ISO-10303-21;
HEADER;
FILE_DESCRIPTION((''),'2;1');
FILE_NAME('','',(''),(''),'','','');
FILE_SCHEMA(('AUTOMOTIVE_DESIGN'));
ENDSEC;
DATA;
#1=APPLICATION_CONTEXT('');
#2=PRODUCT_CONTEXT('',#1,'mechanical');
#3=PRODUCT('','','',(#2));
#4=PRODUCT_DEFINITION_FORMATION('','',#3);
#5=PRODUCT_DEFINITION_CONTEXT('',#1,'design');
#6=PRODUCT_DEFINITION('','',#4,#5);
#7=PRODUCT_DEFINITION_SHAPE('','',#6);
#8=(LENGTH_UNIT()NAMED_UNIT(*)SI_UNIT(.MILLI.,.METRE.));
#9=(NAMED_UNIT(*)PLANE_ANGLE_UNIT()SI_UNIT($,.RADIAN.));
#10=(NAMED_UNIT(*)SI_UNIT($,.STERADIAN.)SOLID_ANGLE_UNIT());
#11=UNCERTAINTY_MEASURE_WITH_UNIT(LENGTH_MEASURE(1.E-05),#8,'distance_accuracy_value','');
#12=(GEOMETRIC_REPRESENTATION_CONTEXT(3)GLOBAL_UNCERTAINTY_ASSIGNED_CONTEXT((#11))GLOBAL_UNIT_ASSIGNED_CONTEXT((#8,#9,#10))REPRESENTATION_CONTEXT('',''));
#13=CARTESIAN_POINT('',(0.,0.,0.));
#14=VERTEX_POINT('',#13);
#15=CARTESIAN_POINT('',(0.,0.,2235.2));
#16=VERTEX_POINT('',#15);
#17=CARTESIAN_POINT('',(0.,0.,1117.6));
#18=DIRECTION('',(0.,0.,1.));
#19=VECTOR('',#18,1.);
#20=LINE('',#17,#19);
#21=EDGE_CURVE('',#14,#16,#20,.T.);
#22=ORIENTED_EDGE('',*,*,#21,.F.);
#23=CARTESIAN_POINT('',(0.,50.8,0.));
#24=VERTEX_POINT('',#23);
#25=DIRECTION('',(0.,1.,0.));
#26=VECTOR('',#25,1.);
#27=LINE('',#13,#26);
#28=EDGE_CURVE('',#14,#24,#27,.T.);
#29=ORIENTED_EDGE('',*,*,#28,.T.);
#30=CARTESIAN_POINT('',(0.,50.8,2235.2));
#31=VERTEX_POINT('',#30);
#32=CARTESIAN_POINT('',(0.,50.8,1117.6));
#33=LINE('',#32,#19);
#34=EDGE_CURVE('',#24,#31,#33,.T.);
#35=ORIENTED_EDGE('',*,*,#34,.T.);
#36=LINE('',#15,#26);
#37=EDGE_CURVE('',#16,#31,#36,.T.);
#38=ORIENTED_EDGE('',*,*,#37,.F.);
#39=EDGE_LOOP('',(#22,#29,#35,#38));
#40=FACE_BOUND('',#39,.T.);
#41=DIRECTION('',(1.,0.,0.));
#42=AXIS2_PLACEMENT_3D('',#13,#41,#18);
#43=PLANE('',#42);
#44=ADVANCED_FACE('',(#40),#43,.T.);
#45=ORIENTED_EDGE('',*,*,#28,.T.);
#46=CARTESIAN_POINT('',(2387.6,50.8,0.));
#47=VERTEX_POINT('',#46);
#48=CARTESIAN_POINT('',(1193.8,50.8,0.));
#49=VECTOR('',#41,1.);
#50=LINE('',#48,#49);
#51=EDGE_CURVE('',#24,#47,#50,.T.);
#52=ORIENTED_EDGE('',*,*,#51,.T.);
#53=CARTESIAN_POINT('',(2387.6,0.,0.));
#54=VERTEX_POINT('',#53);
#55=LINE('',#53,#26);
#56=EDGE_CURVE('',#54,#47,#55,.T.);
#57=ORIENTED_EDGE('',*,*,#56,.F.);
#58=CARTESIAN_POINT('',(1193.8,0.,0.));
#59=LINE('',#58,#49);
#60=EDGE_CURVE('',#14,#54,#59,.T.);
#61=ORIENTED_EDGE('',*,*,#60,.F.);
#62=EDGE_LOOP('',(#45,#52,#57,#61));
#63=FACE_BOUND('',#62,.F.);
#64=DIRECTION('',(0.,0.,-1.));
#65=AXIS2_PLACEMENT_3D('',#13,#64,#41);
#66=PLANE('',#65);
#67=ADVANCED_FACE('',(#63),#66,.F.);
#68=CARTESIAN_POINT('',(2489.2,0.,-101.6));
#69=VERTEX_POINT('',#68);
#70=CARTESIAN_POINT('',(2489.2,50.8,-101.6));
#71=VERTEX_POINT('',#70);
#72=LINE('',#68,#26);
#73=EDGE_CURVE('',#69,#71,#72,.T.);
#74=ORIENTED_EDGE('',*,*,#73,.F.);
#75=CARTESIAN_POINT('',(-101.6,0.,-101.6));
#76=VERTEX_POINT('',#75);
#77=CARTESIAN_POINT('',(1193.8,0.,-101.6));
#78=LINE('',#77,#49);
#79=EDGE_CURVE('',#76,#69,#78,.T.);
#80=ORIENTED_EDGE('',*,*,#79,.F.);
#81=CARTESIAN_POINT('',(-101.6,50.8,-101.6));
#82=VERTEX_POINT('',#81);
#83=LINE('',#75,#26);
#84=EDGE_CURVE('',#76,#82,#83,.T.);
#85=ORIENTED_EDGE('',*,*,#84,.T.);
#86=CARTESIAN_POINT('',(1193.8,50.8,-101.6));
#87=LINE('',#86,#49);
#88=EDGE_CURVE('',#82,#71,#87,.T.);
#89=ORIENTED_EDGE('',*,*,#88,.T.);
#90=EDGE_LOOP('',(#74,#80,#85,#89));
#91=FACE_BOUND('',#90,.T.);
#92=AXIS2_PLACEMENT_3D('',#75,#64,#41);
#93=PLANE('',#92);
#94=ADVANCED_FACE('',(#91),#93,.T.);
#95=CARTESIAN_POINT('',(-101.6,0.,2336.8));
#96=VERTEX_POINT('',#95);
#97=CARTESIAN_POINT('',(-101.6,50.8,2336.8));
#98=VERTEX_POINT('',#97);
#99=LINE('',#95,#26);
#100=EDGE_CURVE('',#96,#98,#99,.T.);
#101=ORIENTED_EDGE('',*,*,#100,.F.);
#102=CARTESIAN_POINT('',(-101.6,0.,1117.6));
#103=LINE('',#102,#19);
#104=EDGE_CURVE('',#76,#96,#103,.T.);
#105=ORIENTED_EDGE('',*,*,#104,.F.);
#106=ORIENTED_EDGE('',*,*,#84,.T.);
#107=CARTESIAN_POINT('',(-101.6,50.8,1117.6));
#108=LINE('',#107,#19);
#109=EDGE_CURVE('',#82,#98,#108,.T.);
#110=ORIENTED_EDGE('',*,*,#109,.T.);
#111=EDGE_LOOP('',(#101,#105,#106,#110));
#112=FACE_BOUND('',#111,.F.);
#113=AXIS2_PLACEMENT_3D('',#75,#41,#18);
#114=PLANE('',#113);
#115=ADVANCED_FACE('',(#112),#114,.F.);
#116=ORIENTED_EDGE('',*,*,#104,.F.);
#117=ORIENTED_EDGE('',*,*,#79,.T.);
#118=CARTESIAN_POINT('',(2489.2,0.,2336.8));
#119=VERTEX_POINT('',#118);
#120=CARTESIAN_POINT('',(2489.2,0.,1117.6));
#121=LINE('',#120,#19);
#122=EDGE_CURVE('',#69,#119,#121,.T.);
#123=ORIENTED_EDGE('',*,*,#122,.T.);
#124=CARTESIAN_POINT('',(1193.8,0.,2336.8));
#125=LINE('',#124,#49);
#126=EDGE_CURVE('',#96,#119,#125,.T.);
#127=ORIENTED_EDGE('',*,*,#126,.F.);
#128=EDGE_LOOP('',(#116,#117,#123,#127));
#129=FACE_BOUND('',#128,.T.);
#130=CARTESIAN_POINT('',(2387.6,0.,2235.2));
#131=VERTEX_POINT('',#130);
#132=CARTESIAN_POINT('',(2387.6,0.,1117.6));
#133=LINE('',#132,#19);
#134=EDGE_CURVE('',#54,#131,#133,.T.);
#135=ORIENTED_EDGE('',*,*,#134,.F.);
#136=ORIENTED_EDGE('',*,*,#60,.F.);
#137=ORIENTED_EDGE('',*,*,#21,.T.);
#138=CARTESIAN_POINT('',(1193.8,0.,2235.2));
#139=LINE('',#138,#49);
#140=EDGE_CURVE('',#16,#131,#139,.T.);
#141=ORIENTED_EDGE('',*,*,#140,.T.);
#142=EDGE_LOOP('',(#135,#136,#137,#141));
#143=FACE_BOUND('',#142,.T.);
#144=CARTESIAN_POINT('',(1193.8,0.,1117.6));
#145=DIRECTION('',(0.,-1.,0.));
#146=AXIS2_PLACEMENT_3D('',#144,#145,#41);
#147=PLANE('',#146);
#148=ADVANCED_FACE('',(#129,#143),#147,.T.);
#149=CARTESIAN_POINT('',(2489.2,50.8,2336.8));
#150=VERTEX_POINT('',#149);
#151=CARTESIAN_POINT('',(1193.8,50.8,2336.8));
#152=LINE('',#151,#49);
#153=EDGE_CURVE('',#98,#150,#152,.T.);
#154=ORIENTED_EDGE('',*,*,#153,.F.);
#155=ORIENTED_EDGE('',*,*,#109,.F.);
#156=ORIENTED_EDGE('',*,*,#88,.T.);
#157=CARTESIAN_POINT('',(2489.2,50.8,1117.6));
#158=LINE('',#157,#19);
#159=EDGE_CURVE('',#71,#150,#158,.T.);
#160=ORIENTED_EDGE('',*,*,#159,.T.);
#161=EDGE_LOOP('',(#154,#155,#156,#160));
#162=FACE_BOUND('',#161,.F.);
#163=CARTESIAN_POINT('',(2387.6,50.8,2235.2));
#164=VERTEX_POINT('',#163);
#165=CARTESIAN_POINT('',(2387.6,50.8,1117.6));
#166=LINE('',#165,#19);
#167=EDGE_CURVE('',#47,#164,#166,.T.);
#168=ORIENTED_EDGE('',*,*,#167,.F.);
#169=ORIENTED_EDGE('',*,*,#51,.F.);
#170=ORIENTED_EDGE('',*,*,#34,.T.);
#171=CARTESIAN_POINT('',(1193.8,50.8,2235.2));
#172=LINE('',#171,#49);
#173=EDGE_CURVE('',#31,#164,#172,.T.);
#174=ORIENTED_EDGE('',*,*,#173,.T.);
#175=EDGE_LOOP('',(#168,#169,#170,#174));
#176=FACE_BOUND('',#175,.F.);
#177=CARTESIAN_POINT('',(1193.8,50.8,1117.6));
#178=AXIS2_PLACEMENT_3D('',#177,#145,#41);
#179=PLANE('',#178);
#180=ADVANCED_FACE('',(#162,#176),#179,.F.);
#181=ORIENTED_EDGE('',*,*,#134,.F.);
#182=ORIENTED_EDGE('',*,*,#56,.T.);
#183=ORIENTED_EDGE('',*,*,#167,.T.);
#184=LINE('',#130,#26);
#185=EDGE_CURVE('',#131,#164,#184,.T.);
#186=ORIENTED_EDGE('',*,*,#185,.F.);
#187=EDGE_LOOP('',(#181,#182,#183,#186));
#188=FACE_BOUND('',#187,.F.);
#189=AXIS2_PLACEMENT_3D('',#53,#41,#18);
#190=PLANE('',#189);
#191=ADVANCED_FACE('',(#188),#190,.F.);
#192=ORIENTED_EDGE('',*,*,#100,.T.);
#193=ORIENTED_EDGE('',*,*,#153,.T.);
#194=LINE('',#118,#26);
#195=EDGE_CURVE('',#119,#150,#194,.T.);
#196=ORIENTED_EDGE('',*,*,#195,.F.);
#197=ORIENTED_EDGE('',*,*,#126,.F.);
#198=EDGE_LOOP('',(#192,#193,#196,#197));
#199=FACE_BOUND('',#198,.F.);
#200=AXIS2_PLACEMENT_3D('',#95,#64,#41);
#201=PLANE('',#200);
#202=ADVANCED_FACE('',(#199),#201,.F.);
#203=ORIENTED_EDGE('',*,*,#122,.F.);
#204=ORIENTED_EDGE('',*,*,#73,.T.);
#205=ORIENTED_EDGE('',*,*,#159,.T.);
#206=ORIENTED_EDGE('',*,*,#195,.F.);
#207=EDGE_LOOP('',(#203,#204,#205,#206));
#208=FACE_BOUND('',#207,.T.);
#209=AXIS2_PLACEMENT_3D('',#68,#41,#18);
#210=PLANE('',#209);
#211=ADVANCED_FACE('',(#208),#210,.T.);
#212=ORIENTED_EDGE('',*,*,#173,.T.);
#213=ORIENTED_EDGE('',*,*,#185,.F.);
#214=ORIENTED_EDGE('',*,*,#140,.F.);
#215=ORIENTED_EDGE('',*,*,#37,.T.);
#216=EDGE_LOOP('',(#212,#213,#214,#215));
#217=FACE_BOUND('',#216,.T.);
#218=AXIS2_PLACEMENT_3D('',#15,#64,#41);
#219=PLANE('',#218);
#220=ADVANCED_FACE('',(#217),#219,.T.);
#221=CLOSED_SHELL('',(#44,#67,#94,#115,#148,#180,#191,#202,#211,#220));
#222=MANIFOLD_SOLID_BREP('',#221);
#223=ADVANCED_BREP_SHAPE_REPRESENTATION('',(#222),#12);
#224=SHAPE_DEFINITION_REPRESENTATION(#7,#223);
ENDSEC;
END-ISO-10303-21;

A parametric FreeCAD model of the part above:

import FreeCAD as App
import Part
import Sketcher

V = App.Vector
Q = App.Units.Quantity


def add_polygon(sketch, points):
    """Adds a closed chain of lines whose ends are joined by coincident constraints."""
    first, n = sketch.GeometryCount, len(points)
    for a, b in zip(points, points[1:] + points[:1]):
        sketch.addGeometry(Part.LineSegment(App.Vector(*a, 0), App.Vector(*b, 0)), False)
    for i in range(n):
        sketch.addConstraint(Sketcher.Constraint("Coincident", first + i, 2, first + (i + 1) % n, 1))

doc = App.newDocument("Part")
body = doc.addObject("PartDesign::Body", "Body")

# Sketch on XZ plane
sketch1 = body.newObject("Sketcher::SketchObject", "Sketch")
sketch1.AttachmentSupport = (doc.getObject("XZ_Plane"), [""])
sketch1.MapMode = "FlatFace"
add_polygon(sketch1, [(-101.6, 2336.8), (-101.6, -101.6), (2489.2, -101.6), (2489.2, 2336.8)])  # lines 0-3
add_polygon(sketch1, [(2387.6, 0), (0, 0), (0, 2235.2), (2387.6, 2235.2)])  # lines 4-7
sketch1.addConstraint([
    Sketcher.Constraint("Vertical", 0),
    Sketcher.Constraint("Horizontal", 1),
    Sketcher.Constraint("Vertical", 2),
    Sketcher.Constraint("Horizontal", 3),
    Sketcher.Constraint("Horizontal", 4),
    Sketcher.Constraint("Vertical", 5),
    Sketcher.Constraint("Horizontal", 6),
    Sketcher.Constraint("Vertical", 7),
    Sketcher.Constraint("Coincident", 4, 2, -1, 1),
    Sketcher.Constraint("DistanceX", 1, 1, 1, 2, Q("102 in")),
    Sketcher.Constraint("DistanceX", 4, 2, 4, 1, Q("94 in")),
    Sketcher.Constraint("DistanceY", 0, 2, 0, 1, Q("96 in")),
    Sketcher.Constraint("DistanceY", 5, 1, 5, 2, Q("88 in")),
    Sketcher.Constraint("DistanceX", 0, 2, -1, 1, Q("4 in")),
    Sketcher.Constraint("DistanceY", 0, 2, -1, 1, Q("4 in")),
])
pad1 = body.newObject("PartDesign::Pad", "Pad")
pad1.Profile = sketch1
pad1.Length = Q("2 in")
pad1.Reversed = True

doc.recompute()
